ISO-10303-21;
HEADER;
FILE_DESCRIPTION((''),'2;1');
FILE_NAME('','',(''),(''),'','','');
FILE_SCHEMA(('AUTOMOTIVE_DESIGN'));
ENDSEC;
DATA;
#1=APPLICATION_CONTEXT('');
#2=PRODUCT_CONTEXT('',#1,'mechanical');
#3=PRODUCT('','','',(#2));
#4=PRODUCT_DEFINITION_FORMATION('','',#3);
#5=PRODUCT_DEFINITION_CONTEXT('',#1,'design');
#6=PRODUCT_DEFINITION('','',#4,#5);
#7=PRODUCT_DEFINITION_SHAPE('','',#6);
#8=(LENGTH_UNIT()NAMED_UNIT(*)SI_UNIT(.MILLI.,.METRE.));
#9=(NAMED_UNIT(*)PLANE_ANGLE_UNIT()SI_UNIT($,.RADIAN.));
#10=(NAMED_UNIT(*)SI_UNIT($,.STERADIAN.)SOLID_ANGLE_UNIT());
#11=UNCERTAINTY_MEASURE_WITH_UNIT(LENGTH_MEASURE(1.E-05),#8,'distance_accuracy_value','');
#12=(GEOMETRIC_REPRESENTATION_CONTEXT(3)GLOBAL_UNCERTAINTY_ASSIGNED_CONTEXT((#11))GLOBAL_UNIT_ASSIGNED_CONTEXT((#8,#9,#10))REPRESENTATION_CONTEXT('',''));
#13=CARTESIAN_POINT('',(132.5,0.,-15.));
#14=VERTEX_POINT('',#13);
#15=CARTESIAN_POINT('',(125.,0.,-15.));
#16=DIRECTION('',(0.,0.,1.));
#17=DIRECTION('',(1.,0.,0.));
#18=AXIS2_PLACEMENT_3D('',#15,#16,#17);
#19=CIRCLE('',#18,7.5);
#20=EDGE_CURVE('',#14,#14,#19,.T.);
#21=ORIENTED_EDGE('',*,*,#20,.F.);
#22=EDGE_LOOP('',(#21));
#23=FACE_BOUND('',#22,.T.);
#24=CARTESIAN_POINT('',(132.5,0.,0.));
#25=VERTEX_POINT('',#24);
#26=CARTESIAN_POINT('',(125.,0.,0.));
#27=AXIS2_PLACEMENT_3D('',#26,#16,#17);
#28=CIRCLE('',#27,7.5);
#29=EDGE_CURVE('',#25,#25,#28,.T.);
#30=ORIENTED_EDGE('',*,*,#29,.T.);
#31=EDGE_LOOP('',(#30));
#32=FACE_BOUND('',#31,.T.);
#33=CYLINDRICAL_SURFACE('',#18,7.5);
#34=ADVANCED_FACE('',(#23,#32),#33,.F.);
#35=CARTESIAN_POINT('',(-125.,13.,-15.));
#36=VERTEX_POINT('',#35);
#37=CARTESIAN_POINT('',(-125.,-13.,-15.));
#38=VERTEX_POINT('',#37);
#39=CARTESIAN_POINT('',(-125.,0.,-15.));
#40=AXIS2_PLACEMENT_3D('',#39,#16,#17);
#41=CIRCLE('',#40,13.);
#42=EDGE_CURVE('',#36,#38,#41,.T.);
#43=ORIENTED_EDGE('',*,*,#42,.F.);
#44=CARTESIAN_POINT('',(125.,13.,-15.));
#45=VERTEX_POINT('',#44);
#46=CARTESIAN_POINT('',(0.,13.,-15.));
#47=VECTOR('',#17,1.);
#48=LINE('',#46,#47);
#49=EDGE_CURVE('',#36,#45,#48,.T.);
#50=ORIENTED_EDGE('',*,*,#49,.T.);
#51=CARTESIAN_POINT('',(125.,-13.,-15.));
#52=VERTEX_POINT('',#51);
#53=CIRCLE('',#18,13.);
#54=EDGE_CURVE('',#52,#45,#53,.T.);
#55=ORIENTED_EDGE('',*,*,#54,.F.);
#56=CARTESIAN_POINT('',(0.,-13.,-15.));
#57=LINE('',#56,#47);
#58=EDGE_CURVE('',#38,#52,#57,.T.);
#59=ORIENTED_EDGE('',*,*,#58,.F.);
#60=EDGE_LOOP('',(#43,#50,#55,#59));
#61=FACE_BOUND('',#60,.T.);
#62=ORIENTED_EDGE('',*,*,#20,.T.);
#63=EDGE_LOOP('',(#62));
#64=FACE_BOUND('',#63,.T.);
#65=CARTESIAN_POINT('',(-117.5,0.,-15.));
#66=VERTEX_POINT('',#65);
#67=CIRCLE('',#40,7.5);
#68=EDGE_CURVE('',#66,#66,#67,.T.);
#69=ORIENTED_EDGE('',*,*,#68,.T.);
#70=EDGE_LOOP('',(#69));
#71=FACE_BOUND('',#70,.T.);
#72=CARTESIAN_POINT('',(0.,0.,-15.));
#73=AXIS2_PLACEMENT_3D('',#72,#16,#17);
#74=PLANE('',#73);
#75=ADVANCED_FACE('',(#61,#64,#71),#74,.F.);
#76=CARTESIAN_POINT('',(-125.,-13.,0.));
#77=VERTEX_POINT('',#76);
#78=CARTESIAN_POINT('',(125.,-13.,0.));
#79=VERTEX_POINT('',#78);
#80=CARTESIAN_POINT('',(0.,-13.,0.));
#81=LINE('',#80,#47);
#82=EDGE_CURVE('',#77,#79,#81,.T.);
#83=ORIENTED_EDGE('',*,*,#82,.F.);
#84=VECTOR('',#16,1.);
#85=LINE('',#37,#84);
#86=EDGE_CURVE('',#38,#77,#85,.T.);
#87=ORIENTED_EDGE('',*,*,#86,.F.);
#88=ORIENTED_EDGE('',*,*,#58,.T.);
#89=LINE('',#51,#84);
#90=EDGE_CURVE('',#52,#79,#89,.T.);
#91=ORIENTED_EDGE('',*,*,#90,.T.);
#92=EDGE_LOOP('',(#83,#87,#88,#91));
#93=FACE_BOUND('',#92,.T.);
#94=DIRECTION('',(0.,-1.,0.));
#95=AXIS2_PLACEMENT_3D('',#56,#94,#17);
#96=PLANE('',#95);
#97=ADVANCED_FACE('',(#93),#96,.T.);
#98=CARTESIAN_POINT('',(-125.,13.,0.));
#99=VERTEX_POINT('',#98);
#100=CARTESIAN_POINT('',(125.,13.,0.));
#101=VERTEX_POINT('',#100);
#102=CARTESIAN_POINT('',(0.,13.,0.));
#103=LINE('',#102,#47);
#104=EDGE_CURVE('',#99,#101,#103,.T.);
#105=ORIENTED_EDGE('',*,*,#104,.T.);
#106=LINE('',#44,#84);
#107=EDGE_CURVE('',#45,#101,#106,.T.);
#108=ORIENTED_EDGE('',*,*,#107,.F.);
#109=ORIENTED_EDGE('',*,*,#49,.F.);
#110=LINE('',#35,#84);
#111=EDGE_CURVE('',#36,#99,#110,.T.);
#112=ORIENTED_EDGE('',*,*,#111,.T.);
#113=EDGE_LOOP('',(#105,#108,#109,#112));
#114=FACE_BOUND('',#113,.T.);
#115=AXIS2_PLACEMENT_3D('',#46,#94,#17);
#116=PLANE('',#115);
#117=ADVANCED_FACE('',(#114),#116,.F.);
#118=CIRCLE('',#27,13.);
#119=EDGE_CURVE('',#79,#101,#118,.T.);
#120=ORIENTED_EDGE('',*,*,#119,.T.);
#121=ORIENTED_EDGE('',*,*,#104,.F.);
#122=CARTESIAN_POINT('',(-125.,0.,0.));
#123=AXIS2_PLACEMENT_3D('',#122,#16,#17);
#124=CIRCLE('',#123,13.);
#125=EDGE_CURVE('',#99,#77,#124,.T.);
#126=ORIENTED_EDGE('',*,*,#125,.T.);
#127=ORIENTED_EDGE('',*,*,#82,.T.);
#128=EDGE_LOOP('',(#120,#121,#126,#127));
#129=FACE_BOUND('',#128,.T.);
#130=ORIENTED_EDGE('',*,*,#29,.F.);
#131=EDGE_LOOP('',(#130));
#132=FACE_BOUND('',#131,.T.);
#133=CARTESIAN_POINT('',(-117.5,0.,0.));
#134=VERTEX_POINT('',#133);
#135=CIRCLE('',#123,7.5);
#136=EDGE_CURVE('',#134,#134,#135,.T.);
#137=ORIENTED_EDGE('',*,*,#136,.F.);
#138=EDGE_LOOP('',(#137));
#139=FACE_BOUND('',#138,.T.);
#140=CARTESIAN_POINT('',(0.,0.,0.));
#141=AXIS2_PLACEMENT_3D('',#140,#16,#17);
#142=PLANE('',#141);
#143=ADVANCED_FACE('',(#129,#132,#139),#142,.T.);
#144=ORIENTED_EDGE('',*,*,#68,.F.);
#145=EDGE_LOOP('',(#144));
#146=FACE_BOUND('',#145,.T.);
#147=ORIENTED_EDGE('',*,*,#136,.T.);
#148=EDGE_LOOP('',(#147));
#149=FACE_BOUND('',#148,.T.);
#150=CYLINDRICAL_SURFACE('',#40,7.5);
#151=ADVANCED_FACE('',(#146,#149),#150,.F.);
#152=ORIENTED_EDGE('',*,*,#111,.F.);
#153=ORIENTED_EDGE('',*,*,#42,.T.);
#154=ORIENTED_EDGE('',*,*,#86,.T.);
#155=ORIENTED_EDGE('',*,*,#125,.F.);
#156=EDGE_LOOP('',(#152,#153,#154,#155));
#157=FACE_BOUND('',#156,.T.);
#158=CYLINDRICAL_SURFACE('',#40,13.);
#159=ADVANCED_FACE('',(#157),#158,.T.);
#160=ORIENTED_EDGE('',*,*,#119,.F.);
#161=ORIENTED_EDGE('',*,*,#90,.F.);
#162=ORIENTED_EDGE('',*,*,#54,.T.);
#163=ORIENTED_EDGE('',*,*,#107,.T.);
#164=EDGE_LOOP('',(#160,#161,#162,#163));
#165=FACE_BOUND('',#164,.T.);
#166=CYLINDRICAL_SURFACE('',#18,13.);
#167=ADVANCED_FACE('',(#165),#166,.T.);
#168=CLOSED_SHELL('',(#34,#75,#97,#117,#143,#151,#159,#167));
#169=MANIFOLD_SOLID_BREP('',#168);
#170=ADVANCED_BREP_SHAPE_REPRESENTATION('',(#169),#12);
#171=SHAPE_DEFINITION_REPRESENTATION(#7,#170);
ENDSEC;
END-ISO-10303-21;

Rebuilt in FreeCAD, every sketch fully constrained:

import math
import FreeCAD as App
import Part
import Sketcher

V = App.Vector

doc = App.newDocument("Part")
body = doc.addObject("PartDesign::Body", "Body")

# Sketch on XY plane
sketch1 = body.newObject("Sketcher::SketchObject", "Sketch")
sketch1.AttachmentSupport = (doc.getObject("XY_Plane"), [""])
sketch1.MapMode = "FlatFace"
sketch1.addGeometry([
    Part.LineSegment(V(125, 13, 0), V(-125, 13, 0)),  # 0
    Part.ArcOfCircle(Part.Circle(V(-125, 0, 0), V(0, 0, 1), 13), math.radians(90), math.radians(270)),  # 1
    Part.LineSegment(V(-125, -13, 0), V(125, -13, 0)),  # 2
    Part.ArcOfCircle(Part.Circle(V(125, 0, 0), V(0, 0, 1), 13), math.radians(-90), math.radians(90)),  # 3
    Part.Circle(V(125, 0, 0), V(0, 0, 1), 8),  # 4
    Part.Circle(V(-125, 0, 0), V(0, 0, 1), 8),  # 5
], False)
sketch1.addConstraint([
    Sketcher.Constraint("Tangent", 0, 2, 1, 1),
    Sketcher.Constraint("Tangent", 1, 2, 2, 1),
    Sketcher.Constraint("Tangent", 2, 2, 3, 1),
    Sketcher.Constraint("Tangent", 3, 2, 0, 1),
    Sketcher.Constraint("Horizontal", 0),
    Sketcher.Constraint("Horizontal", 2),
    Sketcher.Constraint("Coincident", 4, 3, 3, 3),
    Sketcher.Constraint("Coincident", 5, 3, 1, 3),
    Sketcher.Constraint("Equal", 4, 5),
    Sketcher.Constraint("Symmetric", 1, 3, 3, 3, -1, 1),
    Sketcher.Constraint("Diameter", 4, 15.0),
    Sketcher.Constraint("Radius", 1, 13.0),
    Sketcher.Constraint("DistanceX", 0, 2, 0, 1, 250.0),
])
pad1 = body.newObject("PartDesign::Pad", "Pad")
pad1.Profile = sketch1
pad1.Length = 15
pad1.Reversed = True

doc.recompute()
